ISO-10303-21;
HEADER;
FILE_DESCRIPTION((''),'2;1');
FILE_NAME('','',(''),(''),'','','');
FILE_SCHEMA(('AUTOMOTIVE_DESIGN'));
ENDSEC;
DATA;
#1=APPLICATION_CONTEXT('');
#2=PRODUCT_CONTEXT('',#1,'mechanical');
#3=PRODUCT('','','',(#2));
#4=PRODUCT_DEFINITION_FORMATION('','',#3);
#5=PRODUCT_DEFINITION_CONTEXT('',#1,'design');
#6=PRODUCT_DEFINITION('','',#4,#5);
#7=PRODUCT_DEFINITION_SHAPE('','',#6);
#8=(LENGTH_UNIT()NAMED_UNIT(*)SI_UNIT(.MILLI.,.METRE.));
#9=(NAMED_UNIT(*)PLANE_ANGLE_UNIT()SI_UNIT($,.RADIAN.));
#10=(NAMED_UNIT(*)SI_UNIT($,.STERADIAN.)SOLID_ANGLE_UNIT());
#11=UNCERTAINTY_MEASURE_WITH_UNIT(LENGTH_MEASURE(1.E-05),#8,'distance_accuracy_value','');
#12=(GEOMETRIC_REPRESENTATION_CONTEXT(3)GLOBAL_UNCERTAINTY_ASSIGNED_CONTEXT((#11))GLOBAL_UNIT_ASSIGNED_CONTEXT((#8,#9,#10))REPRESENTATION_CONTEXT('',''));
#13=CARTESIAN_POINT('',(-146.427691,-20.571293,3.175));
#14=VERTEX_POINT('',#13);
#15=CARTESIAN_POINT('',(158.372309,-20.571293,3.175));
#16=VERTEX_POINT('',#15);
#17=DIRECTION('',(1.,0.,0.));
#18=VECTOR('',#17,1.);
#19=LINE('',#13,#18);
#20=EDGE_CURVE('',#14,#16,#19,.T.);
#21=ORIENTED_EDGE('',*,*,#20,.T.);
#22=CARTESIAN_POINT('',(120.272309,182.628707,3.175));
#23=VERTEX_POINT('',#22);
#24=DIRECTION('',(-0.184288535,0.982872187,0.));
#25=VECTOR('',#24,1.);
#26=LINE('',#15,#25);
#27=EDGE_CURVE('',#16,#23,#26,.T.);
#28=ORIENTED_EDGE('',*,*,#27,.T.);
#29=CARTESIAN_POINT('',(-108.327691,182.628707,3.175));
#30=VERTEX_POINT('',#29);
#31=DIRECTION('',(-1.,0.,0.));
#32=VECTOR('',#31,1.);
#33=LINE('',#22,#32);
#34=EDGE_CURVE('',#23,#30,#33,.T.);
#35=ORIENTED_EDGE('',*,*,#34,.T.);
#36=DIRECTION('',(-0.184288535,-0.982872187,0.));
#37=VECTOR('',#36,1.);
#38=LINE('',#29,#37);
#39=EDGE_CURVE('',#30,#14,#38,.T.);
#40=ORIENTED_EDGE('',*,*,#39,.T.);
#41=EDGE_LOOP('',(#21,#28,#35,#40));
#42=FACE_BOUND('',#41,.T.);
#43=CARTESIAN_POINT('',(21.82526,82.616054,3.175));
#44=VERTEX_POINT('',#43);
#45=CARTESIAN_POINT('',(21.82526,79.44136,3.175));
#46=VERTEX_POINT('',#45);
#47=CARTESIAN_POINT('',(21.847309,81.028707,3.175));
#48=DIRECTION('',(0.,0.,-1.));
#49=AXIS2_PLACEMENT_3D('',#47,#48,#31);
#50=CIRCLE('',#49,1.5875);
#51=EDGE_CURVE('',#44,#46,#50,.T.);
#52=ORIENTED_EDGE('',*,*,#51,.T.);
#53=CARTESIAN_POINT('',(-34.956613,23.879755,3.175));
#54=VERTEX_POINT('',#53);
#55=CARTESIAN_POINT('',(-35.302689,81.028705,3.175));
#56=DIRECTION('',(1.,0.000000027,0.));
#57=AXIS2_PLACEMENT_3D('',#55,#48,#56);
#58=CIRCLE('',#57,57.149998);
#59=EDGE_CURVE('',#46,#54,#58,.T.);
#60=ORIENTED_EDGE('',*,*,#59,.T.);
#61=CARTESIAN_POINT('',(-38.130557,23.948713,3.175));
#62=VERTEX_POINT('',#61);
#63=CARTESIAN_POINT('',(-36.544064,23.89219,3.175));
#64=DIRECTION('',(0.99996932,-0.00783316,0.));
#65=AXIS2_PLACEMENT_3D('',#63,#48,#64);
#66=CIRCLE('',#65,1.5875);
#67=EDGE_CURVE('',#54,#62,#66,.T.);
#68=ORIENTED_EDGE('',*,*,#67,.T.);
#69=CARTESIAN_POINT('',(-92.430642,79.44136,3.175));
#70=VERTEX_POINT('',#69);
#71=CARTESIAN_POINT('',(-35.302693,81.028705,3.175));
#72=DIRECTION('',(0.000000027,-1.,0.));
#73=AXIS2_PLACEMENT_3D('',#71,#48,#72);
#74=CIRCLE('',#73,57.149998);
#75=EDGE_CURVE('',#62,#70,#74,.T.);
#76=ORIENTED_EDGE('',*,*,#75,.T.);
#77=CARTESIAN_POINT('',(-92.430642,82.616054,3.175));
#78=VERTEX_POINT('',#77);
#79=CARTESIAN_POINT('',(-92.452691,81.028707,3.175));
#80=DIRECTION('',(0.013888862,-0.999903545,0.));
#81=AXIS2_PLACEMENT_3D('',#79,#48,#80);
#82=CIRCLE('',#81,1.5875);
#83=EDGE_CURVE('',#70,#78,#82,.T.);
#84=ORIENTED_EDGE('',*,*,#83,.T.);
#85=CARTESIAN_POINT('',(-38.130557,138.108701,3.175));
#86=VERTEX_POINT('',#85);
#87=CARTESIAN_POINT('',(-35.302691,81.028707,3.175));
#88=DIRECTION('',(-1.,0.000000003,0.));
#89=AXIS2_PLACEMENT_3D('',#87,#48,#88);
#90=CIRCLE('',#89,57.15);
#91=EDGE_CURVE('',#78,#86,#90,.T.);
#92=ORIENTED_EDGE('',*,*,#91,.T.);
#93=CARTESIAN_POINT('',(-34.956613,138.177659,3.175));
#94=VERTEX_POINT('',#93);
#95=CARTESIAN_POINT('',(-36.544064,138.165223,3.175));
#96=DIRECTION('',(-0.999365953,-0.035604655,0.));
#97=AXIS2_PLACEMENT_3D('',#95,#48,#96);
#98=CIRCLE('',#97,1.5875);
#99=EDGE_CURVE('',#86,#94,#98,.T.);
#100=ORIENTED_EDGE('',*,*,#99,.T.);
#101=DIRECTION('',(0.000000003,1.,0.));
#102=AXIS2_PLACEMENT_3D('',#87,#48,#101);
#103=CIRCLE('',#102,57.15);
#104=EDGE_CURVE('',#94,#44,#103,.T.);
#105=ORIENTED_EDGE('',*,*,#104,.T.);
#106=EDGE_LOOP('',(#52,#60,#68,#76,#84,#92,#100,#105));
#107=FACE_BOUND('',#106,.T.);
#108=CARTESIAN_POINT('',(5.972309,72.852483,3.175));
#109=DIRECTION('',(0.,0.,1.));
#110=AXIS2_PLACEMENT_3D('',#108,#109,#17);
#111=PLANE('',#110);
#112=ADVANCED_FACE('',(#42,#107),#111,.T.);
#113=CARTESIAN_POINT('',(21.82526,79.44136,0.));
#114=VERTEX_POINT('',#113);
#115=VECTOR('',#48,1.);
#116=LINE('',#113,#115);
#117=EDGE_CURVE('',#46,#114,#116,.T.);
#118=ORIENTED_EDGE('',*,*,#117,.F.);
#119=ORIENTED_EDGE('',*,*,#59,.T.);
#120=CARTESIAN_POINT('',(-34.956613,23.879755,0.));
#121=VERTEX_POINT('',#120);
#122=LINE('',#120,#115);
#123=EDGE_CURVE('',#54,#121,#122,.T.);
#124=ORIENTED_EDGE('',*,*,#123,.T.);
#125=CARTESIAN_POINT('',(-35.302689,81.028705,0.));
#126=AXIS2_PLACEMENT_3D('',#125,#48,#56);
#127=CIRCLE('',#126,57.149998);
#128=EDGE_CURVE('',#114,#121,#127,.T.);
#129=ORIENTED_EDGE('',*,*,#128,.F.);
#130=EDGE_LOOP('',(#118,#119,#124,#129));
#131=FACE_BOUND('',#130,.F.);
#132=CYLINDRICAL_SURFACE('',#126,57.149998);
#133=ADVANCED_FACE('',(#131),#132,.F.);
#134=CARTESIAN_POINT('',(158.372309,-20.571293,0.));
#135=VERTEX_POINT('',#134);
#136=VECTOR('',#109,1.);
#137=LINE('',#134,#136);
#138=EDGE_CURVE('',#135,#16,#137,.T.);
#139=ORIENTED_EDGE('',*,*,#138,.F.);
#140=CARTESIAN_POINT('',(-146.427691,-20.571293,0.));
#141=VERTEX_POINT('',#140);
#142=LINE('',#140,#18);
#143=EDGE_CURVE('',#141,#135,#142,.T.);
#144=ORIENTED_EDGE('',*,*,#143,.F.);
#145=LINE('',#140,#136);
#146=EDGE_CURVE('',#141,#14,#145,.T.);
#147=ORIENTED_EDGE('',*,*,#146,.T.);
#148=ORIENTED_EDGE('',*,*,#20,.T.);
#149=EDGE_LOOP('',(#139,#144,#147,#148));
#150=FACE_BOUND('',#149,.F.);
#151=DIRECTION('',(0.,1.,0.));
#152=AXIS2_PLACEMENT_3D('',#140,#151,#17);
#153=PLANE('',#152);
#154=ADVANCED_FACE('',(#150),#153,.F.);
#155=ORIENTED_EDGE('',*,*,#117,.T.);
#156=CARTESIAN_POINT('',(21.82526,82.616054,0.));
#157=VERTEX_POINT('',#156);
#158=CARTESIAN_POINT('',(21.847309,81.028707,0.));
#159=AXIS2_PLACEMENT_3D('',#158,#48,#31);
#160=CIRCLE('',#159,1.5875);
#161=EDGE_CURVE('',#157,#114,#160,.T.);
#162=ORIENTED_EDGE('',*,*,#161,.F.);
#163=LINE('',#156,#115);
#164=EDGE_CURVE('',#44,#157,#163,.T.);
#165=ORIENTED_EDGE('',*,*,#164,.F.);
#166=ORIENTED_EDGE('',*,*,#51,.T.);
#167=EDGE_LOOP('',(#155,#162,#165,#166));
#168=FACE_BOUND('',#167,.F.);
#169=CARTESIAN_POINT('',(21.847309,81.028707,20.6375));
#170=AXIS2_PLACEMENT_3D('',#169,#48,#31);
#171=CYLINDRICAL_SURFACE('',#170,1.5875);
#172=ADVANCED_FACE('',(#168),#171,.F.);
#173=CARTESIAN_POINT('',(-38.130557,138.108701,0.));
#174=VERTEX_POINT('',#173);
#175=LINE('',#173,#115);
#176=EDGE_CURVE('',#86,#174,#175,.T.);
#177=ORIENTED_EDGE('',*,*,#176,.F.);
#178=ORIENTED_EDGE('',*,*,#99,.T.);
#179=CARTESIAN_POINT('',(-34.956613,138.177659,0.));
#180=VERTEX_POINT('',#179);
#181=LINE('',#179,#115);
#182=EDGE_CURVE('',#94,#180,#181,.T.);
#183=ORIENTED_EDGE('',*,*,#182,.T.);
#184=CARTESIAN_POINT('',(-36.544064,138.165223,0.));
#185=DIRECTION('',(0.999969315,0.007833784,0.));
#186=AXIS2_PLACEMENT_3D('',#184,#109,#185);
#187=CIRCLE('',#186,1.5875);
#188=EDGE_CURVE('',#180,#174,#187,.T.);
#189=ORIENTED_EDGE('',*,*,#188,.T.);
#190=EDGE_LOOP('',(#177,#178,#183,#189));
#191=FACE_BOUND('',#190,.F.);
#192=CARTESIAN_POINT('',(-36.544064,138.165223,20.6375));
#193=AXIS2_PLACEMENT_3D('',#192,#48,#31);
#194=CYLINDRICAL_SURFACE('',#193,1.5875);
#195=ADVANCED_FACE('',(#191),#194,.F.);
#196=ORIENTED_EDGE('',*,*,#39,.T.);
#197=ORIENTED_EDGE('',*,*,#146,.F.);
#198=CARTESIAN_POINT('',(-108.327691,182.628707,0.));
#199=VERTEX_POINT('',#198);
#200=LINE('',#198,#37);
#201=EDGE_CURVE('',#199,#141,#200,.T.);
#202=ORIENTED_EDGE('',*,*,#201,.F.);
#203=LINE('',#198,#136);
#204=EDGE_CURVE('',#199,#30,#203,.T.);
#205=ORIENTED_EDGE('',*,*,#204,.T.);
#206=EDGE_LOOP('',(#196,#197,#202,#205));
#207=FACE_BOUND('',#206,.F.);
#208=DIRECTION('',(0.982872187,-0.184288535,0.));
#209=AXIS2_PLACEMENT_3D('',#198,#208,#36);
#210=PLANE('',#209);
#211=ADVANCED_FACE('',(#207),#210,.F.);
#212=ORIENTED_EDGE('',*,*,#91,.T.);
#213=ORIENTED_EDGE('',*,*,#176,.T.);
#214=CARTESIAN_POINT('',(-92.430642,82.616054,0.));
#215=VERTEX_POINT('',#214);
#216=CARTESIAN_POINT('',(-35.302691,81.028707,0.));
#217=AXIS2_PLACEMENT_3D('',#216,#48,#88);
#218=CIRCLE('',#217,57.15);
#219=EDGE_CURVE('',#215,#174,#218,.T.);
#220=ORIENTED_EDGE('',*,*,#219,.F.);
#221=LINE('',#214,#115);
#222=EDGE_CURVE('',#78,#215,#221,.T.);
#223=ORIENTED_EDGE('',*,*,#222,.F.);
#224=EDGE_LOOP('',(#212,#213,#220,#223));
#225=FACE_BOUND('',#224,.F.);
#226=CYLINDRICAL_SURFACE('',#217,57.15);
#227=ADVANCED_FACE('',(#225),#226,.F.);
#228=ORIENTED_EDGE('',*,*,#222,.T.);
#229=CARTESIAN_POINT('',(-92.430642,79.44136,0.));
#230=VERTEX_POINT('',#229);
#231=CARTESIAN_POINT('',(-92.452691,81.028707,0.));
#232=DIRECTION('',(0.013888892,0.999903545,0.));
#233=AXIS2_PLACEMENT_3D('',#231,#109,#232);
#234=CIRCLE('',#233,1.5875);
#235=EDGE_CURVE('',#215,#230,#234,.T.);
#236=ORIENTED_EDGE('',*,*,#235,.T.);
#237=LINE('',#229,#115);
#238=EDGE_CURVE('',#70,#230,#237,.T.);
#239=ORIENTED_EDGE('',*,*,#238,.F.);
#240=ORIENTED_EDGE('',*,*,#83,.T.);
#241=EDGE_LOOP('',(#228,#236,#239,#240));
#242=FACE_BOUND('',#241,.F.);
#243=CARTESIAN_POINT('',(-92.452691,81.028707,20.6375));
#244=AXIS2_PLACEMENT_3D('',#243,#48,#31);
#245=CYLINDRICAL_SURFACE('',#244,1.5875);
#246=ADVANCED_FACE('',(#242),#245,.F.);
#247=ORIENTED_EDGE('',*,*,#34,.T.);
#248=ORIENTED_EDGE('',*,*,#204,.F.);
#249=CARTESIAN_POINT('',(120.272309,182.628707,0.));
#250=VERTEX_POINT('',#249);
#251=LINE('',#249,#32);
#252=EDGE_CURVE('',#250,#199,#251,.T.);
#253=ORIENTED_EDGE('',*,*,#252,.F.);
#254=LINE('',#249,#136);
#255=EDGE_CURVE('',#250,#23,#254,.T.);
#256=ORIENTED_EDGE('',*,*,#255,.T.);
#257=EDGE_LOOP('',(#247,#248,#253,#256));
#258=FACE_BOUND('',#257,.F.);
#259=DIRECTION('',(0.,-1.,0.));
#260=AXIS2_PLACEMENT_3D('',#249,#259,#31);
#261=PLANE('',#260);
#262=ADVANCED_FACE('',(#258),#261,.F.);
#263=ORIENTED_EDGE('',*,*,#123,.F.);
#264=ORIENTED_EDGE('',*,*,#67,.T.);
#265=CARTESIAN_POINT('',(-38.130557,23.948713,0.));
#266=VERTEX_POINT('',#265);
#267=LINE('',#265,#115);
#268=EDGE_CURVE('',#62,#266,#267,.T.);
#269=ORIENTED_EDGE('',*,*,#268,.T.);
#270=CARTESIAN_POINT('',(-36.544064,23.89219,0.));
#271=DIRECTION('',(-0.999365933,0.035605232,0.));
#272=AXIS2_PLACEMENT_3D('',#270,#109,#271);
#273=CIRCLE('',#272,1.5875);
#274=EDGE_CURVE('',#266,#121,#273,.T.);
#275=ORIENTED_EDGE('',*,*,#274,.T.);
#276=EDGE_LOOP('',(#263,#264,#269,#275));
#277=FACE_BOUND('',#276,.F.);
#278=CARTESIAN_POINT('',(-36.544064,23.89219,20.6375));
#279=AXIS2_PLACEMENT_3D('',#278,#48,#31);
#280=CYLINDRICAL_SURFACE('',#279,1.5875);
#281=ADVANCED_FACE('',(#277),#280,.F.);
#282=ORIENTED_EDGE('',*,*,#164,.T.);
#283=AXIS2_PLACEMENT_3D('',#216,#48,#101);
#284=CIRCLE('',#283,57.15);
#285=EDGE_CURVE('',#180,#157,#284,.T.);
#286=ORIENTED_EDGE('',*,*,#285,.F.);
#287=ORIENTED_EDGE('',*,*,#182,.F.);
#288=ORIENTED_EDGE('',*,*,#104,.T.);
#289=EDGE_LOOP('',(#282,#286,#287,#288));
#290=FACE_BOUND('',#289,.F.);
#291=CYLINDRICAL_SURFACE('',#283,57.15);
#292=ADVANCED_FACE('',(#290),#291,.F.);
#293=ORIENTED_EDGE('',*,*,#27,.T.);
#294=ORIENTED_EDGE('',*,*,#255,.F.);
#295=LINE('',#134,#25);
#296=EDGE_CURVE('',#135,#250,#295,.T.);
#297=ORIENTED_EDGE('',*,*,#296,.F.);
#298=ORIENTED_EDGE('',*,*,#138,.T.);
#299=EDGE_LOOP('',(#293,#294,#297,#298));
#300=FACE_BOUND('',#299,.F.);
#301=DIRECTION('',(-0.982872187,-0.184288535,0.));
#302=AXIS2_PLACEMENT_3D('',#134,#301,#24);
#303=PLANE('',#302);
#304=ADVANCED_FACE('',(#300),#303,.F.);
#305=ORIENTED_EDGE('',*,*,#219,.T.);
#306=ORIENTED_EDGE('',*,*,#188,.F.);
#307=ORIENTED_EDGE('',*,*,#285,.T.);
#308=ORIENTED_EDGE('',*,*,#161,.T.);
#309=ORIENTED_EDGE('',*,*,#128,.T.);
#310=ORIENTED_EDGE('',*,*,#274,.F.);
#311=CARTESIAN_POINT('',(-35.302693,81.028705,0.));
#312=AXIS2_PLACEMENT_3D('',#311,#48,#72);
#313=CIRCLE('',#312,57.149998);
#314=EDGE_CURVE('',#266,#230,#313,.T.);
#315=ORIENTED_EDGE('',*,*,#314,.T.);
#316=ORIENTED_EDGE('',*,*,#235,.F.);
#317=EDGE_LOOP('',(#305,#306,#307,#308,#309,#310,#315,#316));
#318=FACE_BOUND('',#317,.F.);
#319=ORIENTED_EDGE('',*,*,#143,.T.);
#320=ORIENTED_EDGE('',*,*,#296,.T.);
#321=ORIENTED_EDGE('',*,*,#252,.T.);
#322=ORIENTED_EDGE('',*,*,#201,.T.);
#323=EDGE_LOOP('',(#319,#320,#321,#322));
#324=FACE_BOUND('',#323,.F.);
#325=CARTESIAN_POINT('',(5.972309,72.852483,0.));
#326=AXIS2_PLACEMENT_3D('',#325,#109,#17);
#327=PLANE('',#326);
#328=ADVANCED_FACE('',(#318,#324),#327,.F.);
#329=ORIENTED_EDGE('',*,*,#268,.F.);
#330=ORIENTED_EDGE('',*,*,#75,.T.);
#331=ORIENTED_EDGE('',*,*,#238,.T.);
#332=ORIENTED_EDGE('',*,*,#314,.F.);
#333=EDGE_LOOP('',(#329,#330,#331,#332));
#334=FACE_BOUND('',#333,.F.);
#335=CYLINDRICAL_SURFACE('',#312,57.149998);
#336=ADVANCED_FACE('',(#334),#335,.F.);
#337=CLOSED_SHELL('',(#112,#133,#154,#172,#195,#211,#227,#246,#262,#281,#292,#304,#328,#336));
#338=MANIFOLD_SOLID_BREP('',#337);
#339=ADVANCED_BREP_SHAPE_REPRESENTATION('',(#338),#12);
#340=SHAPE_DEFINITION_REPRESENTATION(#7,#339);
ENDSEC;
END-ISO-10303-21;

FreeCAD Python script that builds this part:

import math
import FreeCAD as App
import Part
import Sketcher
from FreeCAD import Vector
Q = App.Units.Quantity

doc = App.newDocument("Part")
body = doc.addObject("PartDesign::Body", "Body")

# Sketch on XY plane
sketch1 = body.newObject("Sketcher::SketchObject", "Sketch")
sketch1.AttachmentSupport = (doc.getObject("XY_Plane"), [""])
sketch1.MapMode = "FlatFace"
sketch1.addGeometry(Part.LineSegment(Vector(-108, 183, 0), Vector(-146, -21, 0)), False)
sketch1.addGeometry(Part.LineSegment(Vector(-146, -21, 0), Vector(158, -21, 0)), False)
sketch1.addGeometry(Part.LineSegment(Vector(158, -21, 0), Vector(120, 183, 0)), False)
sketch1.addGeometry(Part.LineSegment(Vector(120, 183, 0), Vector(-108, 183, 0)), False)
sketch1.addGeometry(Part.ArcOfCircle(Part.Circle(Vector(-35, 81, 0), Vector(0, 0, 1), 57), math.radians(90), math.radians(180)), False)
sketch1.addGeometry(Part.ArcOfCircle(Part.Circle(Vector(-35, 81, 0), Vector(0, 0, 1), 57), math.radians(0), math.radians(90)), False)
sketch1.addGeometry(Part.ArcOfCircle(Part.Circle(Vector(-35, 81, 0), Vector(0, 0, 1), 57), math.radians(-90), math.radians(0)), False)
sketch1.addGeometry(Part.ArcOfCircle(Part.Circle(Vector(-35, 81, 0), Vector(0, 0, 1), 57), math.radians(180), math.radians(270)), False)
sketch1.addConstraint(Sketcher.Constraint("Coincident", 0, 2, 1, 1))
sketch1.addConstraint(Sketcher.Constraint("Coincident", 1, 2, 2, 1))
sketch1.addConstraint(Sketcher.Constraint("Coincident", 2, 2, 3, 1))
sketch1.addConstraint(Sketcher.Constraint("Coincident", 3, 2, 0, 1))
sketch1.addConstraint(Sketcher.Constraint("Tangent", 4, 1, 5, 2))
sketch1.addConstraint(Sketcher.Constraint("Tangent", 5, 1, 6, 2))
sketch1.addConstraint(Sketcher.Constraint("Tangent", 6, 1, 7, 2))
sketch1.addConstraint(Sketcher.Constraint("Tangent", 7, 1, 4, 2))
sketch1.addConstraint(Sketcher.Constraint("Horizontal", 1))
sketch1.addConstraint(Sketcher.Constraint("Horizontal", 3))
sketch1.addConstraint(Sketcher.Constraint("Equal", 4, 5))
sketch1.addConstraint(Sketcher.Constraint("Horizontal", 7, 3, 5, 1))
sketch1.addConstraint(Sketcher.Constraint("Horizontal", 5, 1, 7, 1))
sketch1.addConstraint(Sketcher.Constraint("Vertical", 7, 3, 4, 1))
sketch1.addConstraint(Sketcher.Constraint("Vertical", 4, 1, 6, 1))
sketch1.addConstraint(Sketcher.Constraint("Equal", 0, 2))
sketch1.addConstraint(Sketcher.Constraint("DistanceX", 1, 1, 1, 2, Q("12 in")))
sketch1.addConstraint(Sketcher.Constraint("DistanceX", 3, 2, 3, 1, Q("9 in")))
sketch1.addConstraint(Sketcher.Constraint("Radius", 4, Q("2.25 in")))
sketch1.addConstraint(Sketcher.Constraint("DistanceY", 0, 2, 7, 3, Q("3.9999999 in")))
sketch1.addConstraint(Sketcher.Constraint("DistanceY", 6, 3, 2, 2, Q("4.0000001 in")))
sketch1.addConstraint(Sketcher.Constraint("DistanceX", 0, 2, 7, 3, Q("4.3749999 in")))
sketch1.addConstraint(Sketcher.Constraint("DistanceX", 4, 3, -1, 1, Q("35.302691 mm")))
sketch1.addConstraint(Sketcher.Constraint("DistanceY", -1, 1, 4, 3, Q("81.028707 mm")))
pad1 = body.newObject("PartDesign::Pad", "Pad")
pad1.Profile = sketch1
pad1.Length = Q("0.125 in")

# Sketch on XY plane
sketch2 = body.newObject("Sketcher::SketchObject", "Sketch001")
sketch2.AttachmentSupport = (doc.getObject("XY_Plane"), [""])
sketch2.MapMode = "FlatFace"
sketch2.AttachmentOffset = App.Placement(Vector(0, 0, 0.125 * 25.4), App.Rotation())
sketch2.addGeometry(Part.Circle(Vector(-36.5, 138.2, 0), Vector(0, 0, 1), 1.6), False)
sketch2.addGeometry(Part.Circle(Vector(21.8, 81, 0), Vector(0, 0, 1), 1.6), False)
sketch2.addGeometry(Part.Circle(Vector(-36.5, 23.9, 0), Vector(0, 0, 1), 1.6), False)
sketch2.addGeometry(Part.Circle(Vector(-92.5, 81, 0), Vector(0, 0, 1), 1.6), False)
sketch2.addConstraint(Sketcher.Constraint("Equal", 0, 1))
sketch2.addConstraint(Sketcher.Constraint("Equal", 1, 2))
sketch2.addConstraint(Sketcher.Constraint("Equal", 2, 3))
sketch2.addConstraint(Sketcher.Constraint("Horizontal", 1, 3, 3, 3))
sketch2.addConstraint(Sketcher.Constraint("Vertical", 0, 3, 2, 3))
sketch2.addConstraint(Sketcher.Constraint("Diameter", 0, Q("0.125 in")))
sketch2.addConstraint(Sketcher.Constraint("DistanceX", 3, 3, 1, 3, Q("4.5 in")))
sketch2.addConstraint(Sketcher.Constraint("DistanceX", -1, 1, 1, 3, Q("21.847309 mm")))
sketch2.addConstraint(Sketcher.Constraint("DistanceY", -1, 1, 2, 3, Q("23.89219 mm")))
sketch2.addConstraint(Sketcher.Constraint("DistanceX", 0, 3, -1, 1, Q("36.544064 mm")))
sketch2.addConstraint(Sketcher.Constraint("DistanceY", -1, 1, 0, 3, Q("138.165223 mm")))
sketch2.addConstraint(Sketcher.Constraint("DistanceY", -1, 1, 1, 3, Q("81.028707 mm")))
doc.recompute()
hole = body.newObject("PartDesign::Hole", "Hole")
hole.Profile = sketch2
hole.ThreadType = "None"
hole.Diameter = Q("0.125 in")
hole.DepthType = "Dimension"
hole.Depth = Q("0.6875 in")
hole.DrillPoint = "Flat"

doc.recompute()
